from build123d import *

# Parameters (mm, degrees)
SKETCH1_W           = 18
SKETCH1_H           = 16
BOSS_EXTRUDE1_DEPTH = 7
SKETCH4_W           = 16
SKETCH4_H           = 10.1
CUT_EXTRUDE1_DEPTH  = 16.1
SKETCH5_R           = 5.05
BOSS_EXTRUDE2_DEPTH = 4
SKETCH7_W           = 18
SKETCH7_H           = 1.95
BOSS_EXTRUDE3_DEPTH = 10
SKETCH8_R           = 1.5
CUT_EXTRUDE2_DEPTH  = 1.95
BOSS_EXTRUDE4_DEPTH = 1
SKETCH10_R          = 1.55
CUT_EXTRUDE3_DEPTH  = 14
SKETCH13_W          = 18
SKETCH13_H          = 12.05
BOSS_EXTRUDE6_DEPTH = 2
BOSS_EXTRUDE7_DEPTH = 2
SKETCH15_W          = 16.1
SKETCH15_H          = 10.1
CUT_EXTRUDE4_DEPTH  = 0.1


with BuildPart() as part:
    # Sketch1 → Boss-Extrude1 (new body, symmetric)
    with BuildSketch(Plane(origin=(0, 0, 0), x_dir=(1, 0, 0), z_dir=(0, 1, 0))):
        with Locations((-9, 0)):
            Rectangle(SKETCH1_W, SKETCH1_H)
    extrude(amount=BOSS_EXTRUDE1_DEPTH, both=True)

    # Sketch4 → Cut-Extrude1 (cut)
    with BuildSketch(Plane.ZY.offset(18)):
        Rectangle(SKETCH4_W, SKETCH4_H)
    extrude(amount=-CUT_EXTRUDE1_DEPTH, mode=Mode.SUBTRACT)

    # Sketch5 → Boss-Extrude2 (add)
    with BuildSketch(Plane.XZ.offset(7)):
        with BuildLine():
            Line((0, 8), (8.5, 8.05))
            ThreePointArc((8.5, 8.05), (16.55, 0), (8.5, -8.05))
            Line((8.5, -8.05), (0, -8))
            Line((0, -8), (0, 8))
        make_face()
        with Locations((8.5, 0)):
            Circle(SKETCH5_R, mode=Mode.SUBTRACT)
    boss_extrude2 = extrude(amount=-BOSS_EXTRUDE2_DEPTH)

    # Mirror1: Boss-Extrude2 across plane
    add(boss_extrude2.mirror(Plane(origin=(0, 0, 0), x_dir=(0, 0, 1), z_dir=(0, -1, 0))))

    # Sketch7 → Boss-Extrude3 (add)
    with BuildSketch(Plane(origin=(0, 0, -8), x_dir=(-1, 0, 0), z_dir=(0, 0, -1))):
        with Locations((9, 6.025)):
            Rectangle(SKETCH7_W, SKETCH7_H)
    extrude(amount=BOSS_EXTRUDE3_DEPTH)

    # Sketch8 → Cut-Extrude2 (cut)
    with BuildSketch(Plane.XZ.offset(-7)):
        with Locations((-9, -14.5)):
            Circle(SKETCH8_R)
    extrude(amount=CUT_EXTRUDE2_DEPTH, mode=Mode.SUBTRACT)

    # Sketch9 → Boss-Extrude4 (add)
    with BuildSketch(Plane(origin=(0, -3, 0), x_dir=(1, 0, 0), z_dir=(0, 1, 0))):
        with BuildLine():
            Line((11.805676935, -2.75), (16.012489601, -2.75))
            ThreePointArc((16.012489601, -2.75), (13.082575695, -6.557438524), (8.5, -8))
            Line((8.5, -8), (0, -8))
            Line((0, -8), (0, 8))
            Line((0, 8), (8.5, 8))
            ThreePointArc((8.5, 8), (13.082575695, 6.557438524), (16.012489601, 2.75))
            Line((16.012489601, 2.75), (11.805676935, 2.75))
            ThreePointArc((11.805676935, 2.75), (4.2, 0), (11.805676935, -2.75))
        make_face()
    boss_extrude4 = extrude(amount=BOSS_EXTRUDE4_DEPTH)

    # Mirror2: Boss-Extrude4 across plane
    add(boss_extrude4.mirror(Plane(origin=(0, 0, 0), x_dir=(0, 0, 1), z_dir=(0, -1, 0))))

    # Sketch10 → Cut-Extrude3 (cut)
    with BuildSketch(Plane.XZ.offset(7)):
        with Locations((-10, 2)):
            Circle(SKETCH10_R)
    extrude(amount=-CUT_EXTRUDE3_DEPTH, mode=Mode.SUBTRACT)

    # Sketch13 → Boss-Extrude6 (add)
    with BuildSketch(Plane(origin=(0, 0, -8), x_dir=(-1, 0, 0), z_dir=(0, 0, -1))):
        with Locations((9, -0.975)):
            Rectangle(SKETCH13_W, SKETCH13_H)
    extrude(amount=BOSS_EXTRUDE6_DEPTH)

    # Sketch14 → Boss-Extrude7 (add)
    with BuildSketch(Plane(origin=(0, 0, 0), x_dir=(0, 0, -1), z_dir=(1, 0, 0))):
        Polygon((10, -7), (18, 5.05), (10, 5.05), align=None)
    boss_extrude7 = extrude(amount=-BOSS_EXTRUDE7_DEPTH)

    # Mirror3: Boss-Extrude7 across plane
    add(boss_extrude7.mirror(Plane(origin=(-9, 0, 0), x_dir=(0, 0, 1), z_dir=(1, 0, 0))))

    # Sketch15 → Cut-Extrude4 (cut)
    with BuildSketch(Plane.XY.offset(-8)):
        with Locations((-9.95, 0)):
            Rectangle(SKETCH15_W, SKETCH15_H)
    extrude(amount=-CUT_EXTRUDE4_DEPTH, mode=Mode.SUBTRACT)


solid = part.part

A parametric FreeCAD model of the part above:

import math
import FreeCAD as App
import Part
import Sketcher
from FreeCAD import Vector


def add_polygon(sketch, points):
    """Adds a closed chain of lines whose ends are joined by coincident constraints."""
    first, n = sketch.GeometryCount, len(points)
    for a, b in zip(points, points[1:] + points[:1]):
        sketch.addGeometry(Part.LineSegment(App.Vector(*a, 0), App.Vector(*b, 0)), False)
    for i in range(n):
        sketch.addConstraint(Sketcher.Constraint("Coincident", first + i, 2, first + (i + 1) % n, 1))

doc = App.newDocument("Part")
body = doc.addObject("PartDesign::Body", "Body")

# Sketch on XZ plane
sketch1 = body.newObject("Sketcher::SketchObject", "Sketch")
sketch1.AttachmentSupport = (doc.getObject("XZ_Plane"), [""])
sketch1.MapMode = "FlatFace"
add_polygon(sketch1, [(-18, -8), (-18, 8), (0, 8), (0, -8)])  # lines 0-3
sketch1.addConstraint(Sketcher.Constraint("Vertical", 0))
sketch1.addConstraint(Sketcher.Constraint("Horizontal", 1))
sketch1.addConstraint(Sketcher.Constraint("Vertical", 2))
sketch1.addConstraint(Sketcher.Constraint("Horizontal", 3))
sketch1.addConstraint(Sketcher.Constraint("Symmetric", 1, 2, 2, 2, -1, 1))
sketch1.addConstraint(Sketcher.Constraint("DistanceX", 1, 1, 1, 2, 18.0))
sketch1.addConstraint(Sketcher.Constraint("DistanceY", 0, 1, 0, 2, 16.0))
pad1 = body.newObject("PartDesign::Pad", "Pad")
pad1.Profile = sketch1
pad1.Length = 14
pad1.Midplane = True

# Sketch on YZ plane
sketch2 = body.newObject("Sketcher::SketchObject", "Sketch001")
sketch2.AttachmentSupport = (doc.getObject("YZ_Plane"), [""])
sketch2.MapMode = "FlatFace"
sketch2.AttachmentOffset = App.Placement(Vector(0, 0, -18), App.Rotation())
add_polygon(sketch2, [(5, -8), (-5, -8), (-5, 8), (5, 8)])  # lines 0-3
sketch2.addConstraint(Sketcher.Constraint("Horizontal", 0))
sketch2.addConstraint(Sketcher.Constraint("Vertical", 1))
sketch2.addConstraint(Sketcher.Constraint("Horizontal", 2))
sketch2.addConstraint(Sketcher.Constraint("Vertical", 3))
sketch2.addConstraint(Sketcher.Constraint("Symmetric", 0, 2, 2, 2, -1, 1))
sketch2.addConstraint(Sketcher.Constraint("DistanceY", 1, 1, 1, 2, 16.0))
sketch2.addConstraint(Sketcher.Constraint("DistanceX", 0, 2, 0, 1, 10.1))
pocket1 = body.newObject("PartDesign::Pocket", "Pocket")
pocket1.Profile = sketch2
pocket1.Length = 16.1
pocket1.Reversed = True

# Sketch on XZ plane
sketch3 = body.newObject("Sketcher::SketchObject", "Sketch002")
sketch3.AttachmentSupport = (doc.getObject("XZ_Plane"), [""])
sketch3.MapMode = "FlatFace"
sketch3.AttachmentOffset = App.Placement(Vector(0, 0, 7), App.Rotation())
sketch3.addGeometry(Part.LineSegment(Vector(8, 8, 0), Vector(0, 8, 0)), False)
sketch3.addGeometry(Part.LineSegment(Vector(0, 8, 0), Vector(0, -8, 0)), False)
sketch3.addGeometry(Part.LineSegment(Vector(0, -8, 0), Vector(8, -8, 0)), False)
sketch3.addGeometry(Part.ArcOfCircle(Part.Circle(Vector(8, 0, 0), Vector(0, 0, 1), 8), math.radians(-90), math.radians(90)), False)
sketch3.addGeometry(Part.Circle(Vector(8, 0, 0), Vector(0, 0, 1), 5), False)
sketch3.addConstraint(Sketcher.Constraint("Coincident", 0, 2, 1, 1))
sketch3.addConstraint(Sketcher.Constraint("Coincident", 1, 2, 2, 1))
sketch3.addConstraint(Sketcher.Constraint("Coincident", 2, 2, 3, 1))
sketch3.addConstraint(Sketcher.Constraint("Coincident", 3, 2, 0, 1))
sketch3.addConstraint(Sketcher.Constraint("Vertical", 1))
sketch3.addConstraint(Sketcher.Constraint("Coincident", 4, 3, 3, 3))
sketch3.addConstraint(Sketcher.Constraint("Symmetric", 0, 2, 1, 2, -1, 1))
sketch3.addConstraint(Sketcher.Constraint("Symmetric", 2, 2, 3, 2, -1))
sketch3.addConstraint(Sketcher.Constraint("Vertical", 4, 3, 2, 2))
sketch3.addConstraint(Sketcher.Constraint("Diameter", 4, 10.1))
sketch3.addConstraint(Sketcher.Constraint("DistanceY", 1, 2, 1, 1, 16.0))
sketch3.addConstraint(Sketcher.Constraint("Radius", 3, 8.05))
sketch3.addConstraint(Sketcher.Constraint("DistanceX", -1, 1, 3, 3, 8.5))
pad2 = body.newObject("PartDesign::Pad", "Pad001")
pad2.Profile = sketch3
pad2.Length = 4
pad2.Reversed = True
doc.recompute()

mirrored = body.newObject("PartDesign::Mirrored", "Mirrored")
mirrored.Originals = [pad2]
mirrored.MirrorPlane = (doc.getObject("XZ_Plane"), [""])
body.Tip = mirrored

# Sketch on XY plane
sketch4 = body.newObject("Sketcher::SketchObject", "Sketch003")
sketch4.AttachmentSupport = (doc.getObject("XY_Plane"), [""])
sketch4.MapMode = "FlatFace"
sketch4.AttachmentOffset = App.Placement(Vector(0, 0, -8), App.Rotation())
add_polygon(sketch4, [(0, 7), (0, 5), (-18, 5), (-18, 7)])  # lines 0-3
sketch4.addConstraint(Sketcher.Constraint("Vertical", 0))
sketch4.addConstraint(Sketcher.Constraint("Horizontal", 1))
sketch4.addConstraint(Sketcher.Constraint("Vertical", 2))
sketch4.addConstraint(Sketcher.Constraint("Horizontal", 3))
sketch4.addConstraint(Sketcher.Constraint("PointOnObject", 0, 2, -2))
sketch4.addConstraint(Sketcher.Constraint("DistanceX", 1, 2, 1, 1, 18.0))
sketch4.addConstraint(Sketcher.Constraint("DistanceY", -1, 1, 2, 2, 7.0))
sketch4.addConstraint(Sketcher.Constraint("DistanceY", 0, 2, 0, 1, 1.95))
pad3 = body.newObject("PartDesign::Pad", "Pad002")
pad3.Profile = sketch4
pad3.Length = 10
pad3.Reversed = True

# Sketch on XZ plane
sketch5 = body.newObject("Sketcher::SketchObject", "Sketch004")
sketch5.AttachmentSupport = (doc.getObject("XZ_Plane"), [""])
sketch5.MapMode = "FlatFace"
sketch5.AttachmentOffset = App.Placement(Vector(0, 0, -7), App.Rotation())
sketch5.addGeometry(Part.Circle(Vector(-9, -14.5, 0), Vector(0, 0, 1), 1.5), False)
sketch5.addConstraint(Sketcher.Constraint("Diameter", 0, 3.0))
sketch5.addConstraint(Sketcher.Constraint("DistanceX", 0, 3, -1, 1, 9.0))
sketch5.addConstraint(Sketcher.Constraint("DistanceY", 0, 3, -1, 1, 14.5))
pocket2 = body.newObject("PartDesign::Pocket", "Pocket001")
pocket2.Profile = sketch5
pocket2.Length = 1.95
pocket2.Reversed = True

# Sketch on XZ plane
sketch6 = body.newObject("Sketcher::SketchObject", "Sketch005")
sketch6.AttachmentSupport = (doc.getObject("XZ_Plane"), [""])
sketch6.MapMode = "FlatFace"
sketch6.AttachmentOffset = App.Placement(Vector(0, 0, 3), App.Rotation())
sketch6.addGeometry(Part.LineSegment(Vector(16, 2.8, 0), Vector(11.8, 2.8, 0)), False)
sketch6.addGeometry(Part.ArcOfCircle(Part.Circle(Vector(8.5, 0, 0), Vector(0, 0, 1), 4.3), math.radians(40), math.radians(320)), False)
sketch6.addGeometry(Part.LineSegment(Vector(11.8, -2.8, 0), Vector(16, -2.8, 0)), False)
sketch6.addGeometry(Part.ArcOfCircle(Part.Circle(Vector(8.5, 0, 0), Vector(0, 0, 1), 8), math.radians(-90), math.radians(-20)), False)
sketch6.addGeometry(Part.LineSegment(Vector(8.5, -8, 0), Vector(0, -8, 0)), False)
sketch6.addGeometry(Part.LineSegment(Vector(0, -8, 0), Vector(0, 8, 0)), False)
sketch6.addGeometry(Part.LineSegment(Vector(0, 8, 0), Vector(8.5, 8, 0)), False)
sketch6.addGeometry(Part.ArcOfCircle(Part.Circle(Vector(8.5, 0, 0), Vector(0, 0, 1), 8), math.radians(20), math.radians(90)), False)
sketch6.addConstraint(Sketcher.Constraint("Coincident", 0, 2, 1, 1))
sketch6.addConstraint(Sketcher.Constraint("Coincident", 1, 2, 2, 1))
sketch6.addConstraint(Sketcher.Constraint("Coincident", 2, 2, 3, 2))
sketch6.addConstraint(Sketcher.Constraint("Tangent", 3, 1, 4, 1))
sketch6.addConstraint(Sketcher.Constraint("Coincident", 4, 2, 5, 1))
sketch6.addConstraint(Sketcher.Constraint("Coincident", 5, 2, 6, 1))
sketch6.addConstraint(Sketcher.Constraint("Tangent", 6, 2, 7, 2))
sketch6.addConstraint(Sketcher.Constraint("Coincident", 7, 1, 0, 1))
sketch6.addConstraint(Sketcher.Constraint("Horizontal", 0))
sketch6.addConstraint(Sketcher.Constraint("Horizontal", 2))
sketch6.addConstraint(Sketcher.Constraint("Horizontal", 4))
sketch6.addConstraint(Sketcher.Constraint("Vertical", 5))
sketch6.addConstraint(Sketcher.Constraint("Horizontal", 6))
sketch6.addConstraint(Sketcher.Constraint("Coincident", 3, 3, 1, 3))
sketch6.addConstraint(Sketcher.Constraint("Coincident", 7, 3, 1, 3))
sketch6.addConstraint(Sketcher.Constraint("Equal", 3, 7))
sketch6.addConstraint(Sketcher.Constraint("Symmetric", 4, 2, 5, 2, -1, 1))
sketch6.addConstraint(Sketcher.Constraint("Vertical", 0, 2, 1, 2))
sketch6.addConstraint(Sketcher.Constraint("Radius", 3, 8.0))
sketch6.addConstraint(Sketcher.Constraint("Radius", 1, 4.3))
sketch6.addConstraint(Sketcher.Constraint("DistanceX", 4, 2, 4, 1, 8.5))
sketch6.addConstraint(Sketcher.Constraint("DistanceY", 1, 2, 0, 2, 5.5))
pad4 = body.newObject("PartDesign::Pad", "Pad003")
pad4.Profile = sketch6
pad4.Length = 1
pad4.Reversed = True
doc.recompute()

mirrored2 = body.newObject("PartDesign::Mirrored", "Mirrored001")
mirrored2.Originals = [pad4]
mirrored2.MirrorPlane = (doc.getObject("XZ_Plane"), [""])
body.Tip = mirrored2

# Sketch on XZ plane
sketch7 = body.newObject("Sketcher::SketchObject", "Sketch006")
sketch7.AttachmentSupport = (doc.getObject("XZ_Plane"), [""])
sketch7.MapMode = "FlatFace"
sketch7.AttachmentOffset = App.Placement(Vector(0, 0, 7), App.Rotation())
sketch7.addGeometry(Part.Circle(Vector(-10, 2, 0), Vector(0, 0, 1), 1.6), False)
sketch7.addConstraint(Sketcher.Constraint("Diameter", 0, 3.1))
sketch7.addConstraint(Sketcher.Constraint("DistanceX", 0, 3, -1, 1, 10.0))
sketch7.addConstraint(Sketcher.Constraint("DistanceY", -1, 1, 0, 3, 2.0))
pocket3 = body.newObject("PartDesign::Pocket", "Pocket002")
pocket3.Profile = sketch7
pocket3.Length = 14

# Sketch on XY plane
sketch8 = body.newObject("Sketcher::SketchObject", "Sketch007")
sketch8.AttachmentSupport = (doc.getObject("XY_Plane"), [""])
sketch8.MapMode = "FlatFace"
sketch8.AttachmentOffset = App.Placement(Vector(0, 0, -8), App.Rotation())
add_polygon(sketch8, [(0, 5), (0, -7), (-18, -7), (-18, 5)])  # lines 0-3
sketch8.addConstraint(Sketcher.Constraint("Vertical", 0))
sketch8.addConstraint(Sketcher.Constraint("Horizontal", 1))
sketch8.addConstraint(Sketcher.Constraint("Vertical", 2))
sketch8.addConstraint(Sketcher.Constraint("Horizontal", 3))
sketch8.addConstraint(Sketcher.Constraint("PointOnObject", 0, 2, -2))
sketch8.addConstraint(Sketcher.Constraint("DistanceX", 1, 2, 1, 1, 18.0))
sketch8.addConstraint(Sketcher.Constraint("DistanceY", 0, 2, -1, 1, 7.0))
sketch8.addConstraint(Sketcher.Constraint("DistanceY", 0, 2, 0, 1, 12.05))
pad5 = body.newObject("PartDesign::Pad", "Pad004")
pad5.Profile = sketch8
pad5.Length = 2
pad5.Reversed = True

# Sketch on YZ plane
sketch9 = body.newObject("Sketcher::SketchObject", "Sketch008")
sketch9.AttachmentSupport = (doc.getObject("YZ_Plane"), [""])
sketch9.MapMode = "FlatFace"
add_polygon(sketch9, [(-7, -10), (5, -18), (5, -10)])  # lines 0-2
sketch9.addConstraint(Sketcher.Constraint("Vertical", 1))
sketch9.addConstraint(Sketcher.Constraint("Horizontal", 2))
sketch9.addConstraint(Sketcher.Constraint("DistanceY", 1, 1, 1, 2, 8.0))
sketch9.addConstraint(Sketcher.Constraint("DistanceY", 0, 2, -1, 1, 18.0))
sketch9.addConstraint(Sketcher.Constraint("DistanceX", 2, 2, -1, 1, 7.0))
sketch9.addConstraint(Sketcher.Constraint("DistanceX", 2, 2, 2, 1, 12.05))
pad6 = body.newObject("PartDesign::Pad", "Pad005")
pad6.Profile = sketch9
pad6.Length = 2
pad6.Reversed = True
doc.recompute()

datumplane = body.newObject("PartDesign::Plane", "DatumPlane")
datumplane.AttachmentSupport = (doc.getObject("YZ_Plane"), [""])
datumplane.MapMode = "FlatFace"
datumplane.AttachmentOffset = App.Placement(Vector(0, 0, -9), App.Rotation())
mirrored3 = body.newObject("PartDesign::Mirrored", "Mirrored002")
mirrored3.Originals = [pad6]
mirrored3.MirrorPlane = (datumplane, [""])
body.Tip = mirrored3

# Sketch on XY plane
sketch10 = body.newObject("Sketcher::SketchObject", "Sketch009")
sketch10.AttachmentSupport = (doc.getObject("XY_Plane"), [""])
sketch10.MapMode = "FlatFace"
sketch10.AttachmentOffset = App.Placement(Vector(0, 0, -8), App.Rotation())
add_polygon(sketch10, [(-18, 5), (-18, -5), (-2, -5), (-2, 5)])  # lines 0-3
sketch10.addConstraint(Sketcher.Constraint("Vertical", 0))
sketch10.addConstraint(Sketcher.Constraint("Horizontal", 1))
sketch10.addConstraint(Sketcher.Constraint("Vertical", 2))
sketch10.addConstraint(Sketcher.Constraint("Horizontal", 3))
sketch10.addConstraint(Sketcher.Constraint("DistanceX", 1, 1, 1, 2, 16.1))
sketch10.addConstraint(Sketcher.Constraint("DistanceY", 0, 2, 0, 1, 10.1))
sketch10.addConstraint(Sketcher.Constraint("DistanceX", 0, 2, -1, 1, 18.0))
sketch10.addConstraint(Sketcher.Constraint("DistanceY", 0, 2, -1, 1, 5.05))
pocket4 = body.newObject("PartDesign::Pocket", "Pocket003")
pocket4.Profile = sketch10
pocket4.Length = 0.1

doc.recompute()
